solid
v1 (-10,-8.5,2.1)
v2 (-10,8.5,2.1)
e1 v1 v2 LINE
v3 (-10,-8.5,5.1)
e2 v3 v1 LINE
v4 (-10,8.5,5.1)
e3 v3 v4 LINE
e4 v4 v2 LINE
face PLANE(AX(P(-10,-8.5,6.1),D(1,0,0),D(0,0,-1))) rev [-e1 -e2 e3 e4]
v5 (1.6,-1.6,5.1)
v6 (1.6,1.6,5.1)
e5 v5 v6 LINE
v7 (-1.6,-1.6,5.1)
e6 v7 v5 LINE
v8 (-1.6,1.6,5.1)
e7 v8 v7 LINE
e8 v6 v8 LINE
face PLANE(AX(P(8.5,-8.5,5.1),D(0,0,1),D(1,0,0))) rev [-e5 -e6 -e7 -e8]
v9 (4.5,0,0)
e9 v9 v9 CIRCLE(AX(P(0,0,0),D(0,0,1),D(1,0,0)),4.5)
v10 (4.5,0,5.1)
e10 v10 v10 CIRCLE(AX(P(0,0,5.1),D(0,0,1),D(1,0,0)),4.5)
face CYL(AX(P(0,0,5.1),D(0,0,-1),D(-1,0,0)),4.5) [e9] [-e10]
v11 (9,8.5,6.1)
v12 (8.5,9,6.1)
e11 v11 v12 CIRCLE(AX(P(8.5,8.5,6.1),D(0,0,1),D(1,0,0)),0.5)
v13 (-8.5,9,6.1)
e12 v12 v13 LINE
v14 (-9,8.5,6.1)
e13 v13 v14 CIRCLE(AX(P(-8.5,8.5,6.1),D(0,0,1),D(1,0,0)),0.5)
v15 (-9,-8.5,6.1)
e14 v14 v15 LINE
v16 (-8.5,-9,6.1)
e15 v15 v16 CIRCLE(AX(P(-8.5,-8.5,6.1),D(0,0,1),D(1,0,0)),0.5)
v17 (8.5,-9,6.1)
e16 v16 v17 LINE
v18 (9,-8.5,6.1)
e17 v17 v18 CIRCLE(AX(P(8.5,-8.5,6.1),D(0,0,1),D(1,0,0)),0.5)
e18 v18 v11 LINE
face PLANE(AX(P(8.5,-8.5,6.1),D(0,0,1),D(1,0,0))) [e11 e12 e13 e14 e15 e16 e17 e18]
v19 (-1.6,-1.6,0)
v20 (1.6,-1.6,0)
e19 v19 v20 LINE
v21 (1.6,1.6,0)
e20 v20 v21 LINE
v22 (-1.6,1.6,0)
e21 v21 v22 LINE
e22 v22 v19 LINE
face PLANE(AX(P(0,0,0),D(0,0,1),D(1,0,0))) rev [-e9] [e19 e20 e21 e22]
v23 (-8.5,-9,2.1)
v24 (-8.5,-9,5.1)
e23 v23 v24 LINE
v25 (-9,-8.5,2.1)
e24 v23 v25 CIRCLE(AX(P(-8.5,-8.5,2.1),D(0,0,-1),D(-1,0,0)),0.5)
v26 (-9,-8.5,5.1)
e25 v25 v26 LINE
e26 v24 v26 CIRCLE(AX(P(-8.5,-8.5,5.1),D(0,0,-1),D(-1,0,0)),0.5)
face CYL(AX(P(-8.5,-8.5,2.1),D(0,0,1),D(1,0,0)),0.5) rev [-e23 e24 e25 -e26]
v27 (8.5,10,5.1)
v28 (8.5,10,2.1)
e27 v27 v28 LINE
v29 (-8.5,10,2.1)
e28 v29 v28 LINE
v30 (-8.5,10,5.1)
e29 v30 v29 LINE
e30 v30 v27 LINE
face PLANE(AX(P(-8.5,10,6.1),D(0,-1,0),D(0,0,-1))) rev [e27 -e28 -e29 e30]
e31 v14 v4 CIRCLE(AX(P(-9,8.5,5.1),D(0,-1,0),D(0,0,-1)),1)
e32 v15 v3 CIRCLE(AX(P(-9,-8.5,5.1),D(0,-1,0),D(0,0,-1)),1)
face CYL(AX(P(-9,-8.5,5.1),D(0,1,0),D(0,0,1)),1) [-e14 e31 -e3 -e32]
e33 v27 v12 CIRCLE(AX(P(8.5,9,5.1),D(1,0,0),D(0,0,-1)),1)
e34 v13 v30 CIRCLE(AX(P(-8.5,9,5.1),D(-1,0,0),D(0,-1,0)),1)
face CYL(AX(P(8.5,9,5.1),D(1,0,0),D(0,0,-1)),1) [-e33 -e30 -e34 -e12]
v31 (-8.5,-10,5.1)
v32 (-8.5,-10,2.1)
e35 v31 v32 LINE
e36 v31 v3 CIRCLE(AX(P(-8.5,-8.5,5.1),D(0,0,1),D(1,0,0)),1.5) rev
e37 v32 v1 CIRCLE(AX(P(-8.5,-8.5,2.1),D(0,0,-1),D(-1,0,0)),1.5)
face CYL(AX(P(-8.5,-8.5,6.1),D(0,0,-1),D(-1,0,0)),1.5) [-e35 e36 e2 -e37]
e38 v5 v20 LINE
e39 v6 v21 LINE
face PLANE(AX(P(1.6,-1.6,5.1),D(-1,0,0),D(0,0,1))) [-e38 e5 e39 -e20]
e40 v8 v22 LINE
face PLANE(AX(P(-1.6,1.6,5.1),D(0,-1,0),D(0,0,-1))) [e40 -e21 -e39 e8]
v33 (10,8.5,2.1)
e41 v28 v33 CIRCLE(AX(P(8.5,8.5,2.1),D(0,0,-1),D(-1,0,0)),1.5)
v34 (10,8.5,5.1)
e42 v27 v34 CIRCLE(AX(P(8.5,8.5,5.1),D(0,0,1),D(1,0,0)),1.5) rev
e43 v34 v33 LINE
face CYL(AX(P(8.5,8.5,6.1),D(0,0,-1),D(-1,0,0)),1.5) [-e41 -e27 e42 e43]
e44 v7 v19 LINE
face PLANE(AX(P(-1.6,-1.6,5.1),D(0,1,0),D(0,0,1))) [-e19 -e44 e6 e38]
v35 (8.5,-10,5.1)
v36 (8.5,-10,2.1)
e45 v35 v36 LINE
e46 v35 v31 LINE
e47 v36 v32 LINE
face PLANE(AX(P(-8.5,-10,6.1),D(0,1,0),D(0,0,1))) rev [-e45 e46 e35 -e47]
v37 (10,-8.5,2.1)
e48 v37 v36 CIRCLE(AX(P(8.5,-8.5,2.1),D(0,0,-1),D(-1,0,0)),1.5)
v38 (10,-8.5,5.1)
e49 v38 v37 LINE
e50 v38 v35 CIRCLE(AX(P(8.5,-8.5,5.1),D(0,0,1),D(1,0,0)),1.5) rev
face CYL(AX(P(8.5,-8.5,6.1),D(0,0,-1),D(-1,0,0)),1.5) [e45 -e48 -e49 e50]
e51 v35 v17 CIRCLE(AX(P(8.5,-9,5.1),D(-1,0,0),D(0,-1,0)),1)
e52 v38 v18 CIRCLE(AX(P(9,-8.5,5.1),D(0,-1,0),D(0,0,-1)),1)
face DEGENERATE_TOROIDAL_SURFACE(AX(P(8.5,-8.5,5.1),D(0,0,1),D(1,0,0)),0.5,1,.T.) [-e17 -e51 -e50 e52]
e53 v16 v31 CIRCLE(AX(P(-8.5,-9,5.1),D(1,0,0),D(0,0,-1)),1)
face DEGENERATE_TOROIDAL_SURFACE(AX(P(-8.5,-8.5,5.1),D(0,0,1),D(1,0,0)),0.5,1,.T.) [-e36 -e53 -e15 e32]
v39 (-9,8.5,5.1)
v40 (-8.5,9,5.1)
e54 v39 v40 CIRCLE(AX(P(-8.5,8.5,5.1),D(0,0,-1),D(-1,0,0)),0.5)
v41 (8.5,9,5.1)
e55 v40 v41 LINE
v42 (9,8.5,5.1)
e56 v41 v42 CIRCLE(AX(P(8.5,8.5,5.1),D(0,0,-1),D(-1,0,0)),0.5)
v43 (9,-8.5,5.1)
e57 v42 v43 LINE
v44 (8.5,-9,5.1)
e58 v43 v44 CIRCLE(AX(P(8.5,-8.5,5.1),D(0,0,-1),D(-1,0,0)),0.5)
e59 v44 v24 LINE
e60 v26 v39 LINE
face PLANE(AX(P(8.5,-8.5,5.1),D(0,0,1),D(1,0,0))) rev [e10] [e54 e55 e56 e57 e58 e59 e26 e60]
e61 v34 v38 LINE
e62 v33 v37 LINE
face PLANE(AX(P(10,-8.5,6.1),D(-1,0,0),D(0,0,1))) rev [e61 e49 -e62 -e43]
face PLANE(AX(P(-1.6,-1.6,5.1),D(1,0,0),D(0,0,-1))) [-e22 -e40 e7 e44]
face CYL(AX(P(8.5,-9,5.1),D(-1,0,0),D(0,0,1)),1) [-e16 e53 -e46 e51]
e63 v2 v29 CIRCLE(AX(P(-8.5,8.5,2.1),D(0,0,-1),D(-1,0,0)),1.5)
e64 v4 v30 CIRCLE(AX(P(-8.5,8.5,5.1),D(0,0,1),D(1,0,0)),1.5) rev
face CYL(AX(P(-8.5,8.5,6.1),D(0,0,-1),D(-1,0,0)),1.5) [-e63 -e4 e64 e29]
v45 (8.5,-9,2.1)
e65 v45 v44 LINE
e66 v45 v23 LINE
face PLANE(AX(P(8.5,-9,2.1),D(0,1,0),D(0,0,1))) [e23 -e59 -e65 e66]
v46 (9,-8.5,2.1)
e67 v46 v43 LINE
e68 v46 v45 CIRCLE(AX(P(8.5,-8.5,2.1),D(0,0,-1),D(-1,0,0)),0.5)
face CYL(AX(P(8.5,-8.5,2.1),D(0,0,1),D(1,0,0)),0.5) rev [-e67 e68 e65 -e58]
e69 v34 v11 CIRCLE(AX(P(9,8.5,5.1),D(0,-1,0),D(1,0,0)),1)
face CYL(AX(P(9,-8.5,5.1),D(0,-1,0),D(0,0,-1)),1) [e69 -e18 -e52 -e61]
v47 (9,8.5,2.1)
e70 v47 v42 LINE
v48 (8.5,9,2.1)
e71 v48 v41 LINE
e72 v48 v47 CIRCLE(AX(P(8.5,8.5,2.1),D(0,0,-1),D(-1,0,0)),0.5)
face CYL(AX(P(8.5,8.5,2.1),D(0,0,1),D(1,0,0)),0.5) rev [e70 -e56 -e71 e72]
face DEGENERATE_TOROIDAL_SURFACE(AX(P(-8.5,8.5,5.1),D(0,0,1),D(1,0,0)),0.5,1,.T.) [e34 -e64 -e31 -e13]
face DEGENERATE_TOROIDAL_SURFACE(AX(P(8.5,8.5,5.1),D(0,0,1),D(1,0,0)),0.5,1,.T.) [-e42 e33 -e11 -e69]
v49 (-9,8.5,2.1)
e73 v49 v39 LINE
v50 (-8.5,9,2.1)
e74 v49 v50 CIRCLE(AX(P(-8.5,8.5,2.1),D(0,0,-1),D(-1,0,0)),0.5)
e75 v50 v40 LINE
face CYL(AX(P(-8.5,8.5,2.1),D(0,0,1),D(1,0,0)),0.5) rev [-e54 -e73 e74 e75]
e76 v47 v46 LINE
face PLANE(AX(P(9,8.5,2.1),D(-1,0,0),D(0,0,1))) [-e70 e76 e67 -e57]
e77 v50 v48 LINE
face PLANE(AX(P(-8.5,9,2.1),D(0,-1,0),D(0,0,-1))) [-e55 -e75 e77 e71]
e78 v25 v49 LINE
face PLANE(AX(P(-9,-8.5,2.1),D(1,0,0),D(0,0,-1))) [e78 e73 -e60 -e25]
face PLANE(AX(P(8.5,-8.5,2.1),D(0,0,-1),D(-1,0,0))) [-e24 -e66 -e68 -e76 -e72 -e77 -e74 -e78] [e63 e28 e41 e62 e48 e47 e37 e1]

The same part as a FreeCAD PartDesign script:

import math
import FreeCAD as App
import Part
import Sketcher
Q = App.Units.Quantity


def edges_at(feature, points):
    """Names of the edges that pass closest to the given points."""
    edges = feature.Shape.Edges
    near = lambda p: min(range(len(edges)), key=lambda i: edges[i].distToShape(Part.Vertex(*p))[0])
    return sorted({f"Edge{near(p) + 1}" for p in points})


def add_polygon(sketch, points):
    """Adds a closed chain of lines whose ends are joined by coincident constraints."""
    first, n = sketch.GeometryCount, len(points)
    for a, b in zip(points, points[1:] + points[:1]):
        sketch.addGeometry(Part.LineSegment(App.Vector(*a, 0), App.Vector(*b, 0)), False)
    for i in range(n):
        sketch.addConstraint(Sketcher.Constraint("Coincident", first + i, 2, first + (i + 1) % n, 1))

doc = App.newDocument("Part")
body = doc.addObject("PartDesign::Body", "Body")

# Sketch on XY plane
sketch1 = body.newObject("Sketcher::SketchObject", "Sketch")
sketch1.AttachmentSupport = (doc.getObject("XY_Plane"), [""])
sketch1.MapMode = "FlatFace"
sketch1.addGeometry(Part.Circle(App.Vector(0, 0, 0), App.Vector(0, 0, 1), 4.5), False)  # 0
add_polygon(sketch1, [(1.6, -1.6), (-1.6, -1.6), (-1.6, 1.6), (1.6, 1.6)])  # lines 1-4
sketch1.addConstraint([
    Sketcher.Constraint("Horizontal", 1),
    Sketcher.Constraint("Vertical", 2),
    Sketcher.Constraint("Horizontal", 3),
    Sketcher.Constraint("Vertical", 4),
    Sketcher.Constraint("Coincident", 0, 3, -1, 1),
    Sketcher.Constraint("Symmetric", 1, 2, 3, 2, -1, 1),
    Sketcher.Constraint("Equal", 3, 2),
    Sketcher.Constraint("Diameter", 0, Q("9 mm")),
    Sketcher.Constraint("DistanceX", 1, 2, 1, 1, Q("3.2 mm")),
])
pad1 = body.newObject("PartDesign::Pad", "Pad")
pad1.Profile = sketch1
pad1.Length = 5.1

# Sketch on XY plane
sketch2 = body.newObject("Sketcher::SketchObject", "Sketch001")
sketch2.AttachmentSupport = (doc.getObject("XY_Plane"), [""])
sketch2.MapMode = "FlatFace"
sketch2.AttachmentOffset = App.Placement(App.Vector(0, 0, 5.1), App.Rotation())
sketch2.addGeometry([
    Part.LineSegment(App.Vector(-8.5, -10, 0), App.Vector(8.5, -10, 0)),  # 0
    Part.ArcOfCircle(Part.Circle(App.Vector(8.5, -8.5, 0), App.Vector(0, 0, 1), 1.5), math.radians(-90), math.radians(0)),  # 1
    Part.LineSegment(App.Vector(10, -8.5, 0), App.Vector(10, 8.5, 0)),  # 2
    Part.ArcOfCircle(Part.Circle(App.Vector(8.5, 8.5, 0), App.Vector(0, 0, 1), 1.5), math.radians(0), math.radians(90)),  # 3
    Part.LineSegment(App.Vector(8.5, 10, 0), App.Vector(-8.5, 10, 0)),  # 4
    Part.ArcOfCircle(Part.Circle(App.Vector(-8.5, 8.5, 0), App.Vector(0, 0, 1), 1.5), math.radians(90), math.radians(180)),  # 5
    Part.LineSegment(App.Vector(-10, 8.5, 0), App.Vector(-10, -8.5, 0)),  # 6
    Part.ArcOfCircle(Part.Circle(App.Vector(-8.5, -8.5, 0), App.Vector(0, 0, 1), 1.5), math.radians(180), math.radians(270)),  # 7
], False)
sketch2.addConstraint([
    Sketcher.Constraint("Tangent", 0, 2, 1, 1),
    Sketcher.Constraint("Tangent", 1, 2, 2, 1),
    Sketcher.Constraint("Tangent", 2, 2, 3, 1),
    Sketcher.Constraint("Tangent", 3, 2, 4, 1),
    Sketcher.Constraint("Tangent", 4, 2, 5, 1),
    Sketcher.Constraint("Tangent", 5, 2, 6, 1),
    Sketcher.Constraint("Tangent", 6, 2, 7, 1),
    Sketcher.Constraint("Tangent", 7, 2, 0, 1),
    Sketcher.Constraint("Horizontal", 0),
    Sketcher.Constraint("Vertical", 2),
    Sketcher.Constraint("Horizontal", 4),
    Sketcher.Constraint("Vertical", 6),
    Sketcher.Constraint("Equal", 1, 3),
    Sketcher.Constraint("Equal", 3, 5),
    Sketcher.Constraint("Equal", 5, 7),
    Sketcher.Constraint("Symmetric", 1, 3, 5, 3, -1, 1),
    Sketcher.Constraint("Equal", 4, 2),
    Sketcher.Constraint("Radius", 1, Q("1.5 mm")),
    Sketcher.Constraint("DistanceX", 0, 1, 0, 2, Q("17 mm")),
])
pad2 = body.newObject("PartDesign::Pad", "Pad001")
pad2.Profile = sketch2
pad2.Length = 1

# Sketch on XY plane
sketch3 = body.newObject("Sketcher::SketchObject", "Sketch002")
sketch3.AttachmentSupport = (doc.getObject("XY_Plane"), [""])
sketch3.MapMode = "FlatFace"
sketch3.AttachmentOffset = App.Placement(App.Vector(0, 0, 2.1), App.Rotation())
sketch3.addGeometry([
    Part.LineSegment(App.Vector(8.5, -10, 0), App.Vector(-8.5, -10, 0)),  # 0
    Part.ArcOfCircle(Part.Circle(App.Vector(-8.5, -8.5, 0), App.Vector(0, 0, 1), 1.5), math.radians(180), math.radians(270)),  # 1
    Part.LineSegment(App.Vector(-10, -8.5, 0), App.Vector(-10, 8.5, 0)),  # 2
    Part.ArcOfCircle(Part.Circle(App.Vector(-8.5, 8.5, 0), App.Vector(0, 0, 1), 1.5), math.radians(90), math.radians(180)),  # 3
    Part.LineSegment(App.Vector(-8.5, 10, 0), App.Vector(8.5, 10, 0)),  # 4
    Part.ArcOfCircle(Part.Circle(App.Vector(8.5, 8.5, 0), App.Vector(0, 0, 1), 1.5), math.radians(0), math.radians(90)),  # 5
    Part.LineSegment(App.Vector(10, 8.5, 0), App.Vector(10, -8.5, 0)),  # 6
    Part.ArcOfCircle(Part.Circle(App.Vector(8.5, -8.5, 0), App.Vector(0, 0, 1), 1.5), math.radians(-90), math.radians(0)),  # 7
    Part.LineSegment(App.Vector(8.5, 9, 0), App.Vector(-8.5, 9, 0)),  # 8
    Part.ArcOfCircle(Part.Circle(App.Vector(-8.5, 8.5, 0), App.Vector(0, 0, 1), 0.5), math.radians(90), math.radians(180)),  # 9
    Part.LineSegment(App.Vector(-9, 8.5, 0), App.Vector(-9, -8.5, 0)),  # 10
    Part.ArcOfCircle(Part.Circle(App.Vector(-8.5, -8.5, 0), App.Vector(0, 0, 1), 0.5), math.radians(180), math.radians(270)),  # 11
    Part.LineSegment(App.Vector(-8.5, -9, 0), App.Vector(8.5, -9, 0)),  # 12
    Part.ArcOfCircle(Part.Circle(App.Vector(8.5, -8.5, 0), App.Vector(0, 0, 1), 0.5), math.radians(-90), math.radians(0)),  # 13
    Part.LineSegment(App.Vector(9, -8.5, 0), App.Vector(9, 8.5, 0)),  # 14
    Part.ArcOfCircle(Part.Circle(App.Vector(8.5, 8.5, 0), App.Vector(0, 0, 1), 0.5), math.radians(0), math.radians(90)),  # 15
], False)
sketch3.addConstraint([
    Sketcher.Constraint("Tangent", 0, 2, 1, 2),
    Sketcher.Constraint("Tangent", 1, 1, 2, 1),
    Sketcher.Constraint("Tangent", 2, 2, 3, 2),
    Sketcher.Constraint("Tangent", 3, 1, 4, 1),
    Sketcher.Constraint("Tangent", 4, 2, 5, 2),
    Sketcher.Constraint("Tangent", 5, 1, 6, 1),
    Sketcher.Constraint("Tangent", 6, 2, 7, 2),
    Sketcher.Constraint("Tangent", 7, 1, 0, 1),
    Sketcher.Constraint("Tangent", 8, 2, 9, 1),
    Sketcher.Constraint("Tangent", 9, 2, 10, 1),
    Sketcher.Constraint("Tangent", 10, 2, 11, 1),
    Sketcher.Constraint("Tangent", 11, 2, 12, 1),
    Sketcher.Constraint("Tangent", 12, 2, 13, 1),
    Sketcher.Constraint("Tangent", 13, 2, 14, 1),
    Sketcher.Constraint("Tangent", 14, 2, 15, 1),
    Sketcher.Constraint("Tangent", 15, 2, 8, 1),
    Sketcher.Constraint("Horizontal", 0),
    Sketcher.Constraint("Vertical", 2),
    Sketcher.Constraint("Horizontal", 4),
    Sketcher.Constraint("Vertical", 6),
    Sketcher.Constraint("Horizontal", 8),
    Sketcher.Constraint("Vertical", 10),
    Sketcher.Constraint("Horizontal", 12),
    Sketcher.Constraint("Vertical", 14),
    Sketcher.Constraint("Coincident", 9, 3, 3, 3),
    Sketcher.Constraint("Coincident", 11, 3, 1, 3),
    Sketcher.Constraint("Coincident", 13, 3, 7, 3),
    Sketcher.Constraint("Equal", 1, 3),
    Sketcher.Constraint("Equal", 3, 5),
    Sketcher.Constraint("Equal", 5, 7),
    Sketcher.Constraint("Equal", 13, 15),
    Sketcher.Constraint("Symmetric", 1, 3, 5, 3, -1, 1),
    Sketcher.Constraint("Equal", 12, 2),
    Sketcher.Constraint("Radius", 1, Q("1.5 mm")),
    Sketcher.Constraint("Radius", 9, Q("0.5 mm")),
    Sketcher.Constraint("DistanceX", 0, 2, 0, 1, Q("17 mm")),
])
pad3 = body.newObject("PartDesign::Pad", "Pad002")
pad3.Profile = sketch3
pad3.Length = 3
doc.recompute()

fillet = body.newObject("PartDesign::Fillet", "Fillet")
fillet.Base = (pad3, edges_at(pad3, [
    (9.561, -9.561, 6.1),
    (10, 0, 6.1),
    (9.561, 9.561, 6.1),
    (0, 10, 6.1),
    (-9.561, 9.561, 6.1),
    (-10, 0, 6.1),
    (-9.561, -9.561, 6.1),
    (0, -10, 6.1),
]))
fillet.Radius = 1

doc.recompute()
